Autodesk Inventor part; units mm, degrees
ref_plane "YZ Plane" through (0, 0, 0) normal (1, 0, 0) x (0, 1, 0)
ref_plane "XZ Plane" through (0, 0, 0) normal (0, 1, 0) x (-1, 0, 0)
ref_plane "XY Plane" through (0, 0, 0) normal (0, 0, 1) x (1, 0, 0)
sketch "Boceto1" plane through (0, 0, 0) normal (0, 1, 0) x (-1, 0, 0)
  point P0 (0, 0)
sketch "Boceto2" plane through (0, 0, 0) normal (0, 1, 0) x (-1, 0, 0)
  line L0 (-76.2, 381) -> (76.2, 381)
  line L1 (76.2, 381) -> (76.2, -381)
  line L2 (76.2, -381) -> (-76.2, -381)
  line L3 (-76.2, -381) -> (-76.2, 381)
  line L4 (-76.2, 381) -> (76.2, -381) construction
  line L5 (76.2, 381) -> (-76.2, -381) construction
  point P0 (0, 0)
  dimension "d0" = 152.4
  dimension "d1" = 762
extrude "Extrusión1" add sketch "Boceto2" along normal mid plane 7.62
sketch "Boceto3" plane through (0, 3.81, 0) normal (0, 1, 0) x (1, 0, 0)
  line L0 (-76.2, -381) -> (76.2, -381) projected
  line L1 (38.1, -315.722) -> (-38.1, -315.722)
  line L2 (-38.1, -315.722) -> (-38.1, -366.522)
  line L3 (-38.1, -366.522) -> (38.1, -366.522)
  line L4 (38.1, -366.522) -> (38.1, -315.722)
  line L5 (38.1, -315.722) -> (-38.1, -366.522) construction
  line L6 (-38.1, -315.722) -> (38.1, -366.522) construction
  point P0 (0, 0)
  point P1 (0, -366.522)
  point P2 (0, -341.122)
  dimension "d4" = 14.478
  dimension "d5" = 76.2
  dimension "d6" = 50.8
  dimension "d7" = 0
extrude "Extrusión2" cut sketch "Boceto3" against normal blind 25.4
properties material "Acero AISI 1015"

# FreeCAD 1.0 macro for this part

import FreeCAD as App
import Part
import Sketcher
from FreeCAD import Vector
Q = App.Units.Quantity

doc = App.newDocument("Part")
body = doc.addObject("PartDesign::Body", "Body")

# Sketch on XZ plane
sketch1 = doc.addObject("Sketcher::SketchObject", "Sketch")
body.addObject(sketch1)
sketch1.AttachmentSupport = (doc.XZ_Plane, [""])
sketch1.MapMode = "FlatFace"
sketch1.addGeometry([
    Part.LineSegment(Vector(-76.2, 381, 0), Vector(76.2, 381, 0)),
    Part.LineSegment(Vector(76.2, 381, 0), Vector(76.2, -381, 0)),
    Part.LineSegment(Vector(76.2, -381, 0), Vector(-76.2, -381, 0)),
    Part.LineSegment(Vector(-76.2, -381, 0), Vector(-76.2, 381, 0)),
], False)
sketch1.addConstraint([
    Sketcher.Constraint("Coincident", 0, 2, 1, 1),
    Sketcher.Constraint("Coincident", 1, 2, 2, 1),
    Sketcher.Constraint("Coincident", 2, 2, 3, 1),
    Sketcher.Constraint("Coincident", 3, 2, 0, 1),
    Sketcher.Constraint("Horizontal", 0),
    Sketcher.Constraint("Vertical", 1),
    Sketcher.Constraint("Horizontal", 2),
    Sketcher.Constraint("Vertical", 3),
    Sketcher.Constraint("Symmetric", 0, 2, 2, 2, -1, 1),
    Sketcher.Constraint("DistanceX", 0, 1, 0, 2, Q("6 in")),
    Sketcher.Constraint("DistanceY", 1, 2, 1, 1, Q("30 in")),
])
pad1 = doc.addObject("PartDesign::Pad", "Pad")
body.addObject(pad1)
pad1.Profile = sketch1
pad1.Length = Q("0.3 in")
pad1.Midplane = True

# Sketch on XZ plane
sketch2 = doc.addObject("Sketcher::SketchObject", "Sketch001")
body.addObject(sketch2)
sketch2.AttachmentSupport = (doc.XZ_Plane, [""])
sketch2.MapMode = "FlatFace"
sketch2.AttachmentOffset = App.Placement(Vector(0, 0, -0.15 * 25.4), App.Rotation())
sketch2.addGeometry([
    Part.LineSegment(Vector(38.1, 366.522, 0), Vector(38.1, 315.722, 0)),
    Part.LineSegment(Vector(38.1, 315.722, 0), Vector(-38.1, 315.722, 0)),
    Part.LineSegment(Vector(-38.1, 315.722, 0), Vector(-38.1, 366.522, 0)),
    Part.LineSegment(Vector(-38.1, 366.522, 0), Vector(38.1, 366.522, 0)),
], False)
sketch2.addConstraint([
    Sketcher.Constraint("Coincident", 0, 2, 1, 1),
    Sketcher.Constraint("Coincident", 1, 2, 2, 1),
    Sketcher.Constraint("Coincident", 2, 2, 3, 1),
    Sketcher.Constraint("Coincident", 3, 2, 0, 1),
    Sketcher.Constraint("Vertical", 0),
    Sketcher.Constraint("Horizontal", 1),
    Sketcher.Constraint("Vertical", 2),
    Sketcher.Constraint("Horizontal", 3),
    Sketcher.Constraint("DistanceX", 1, 2, 1, 1, Q("3 in")),
    Sketcher.Constraint("DistanceY", 0, 2, 0, 1, Q("2 in")),
    Sketcher.Constraint("DistanceX", -1, 1, 0, 2, Q("1.5 in")),
    Sketcher.Constraint("DistanceY", -1, 1, 0, 2, Q("12.43 in")),
])
pocket1 = doc.addObject("PartDesign::Pocket", "Pocket")
body.addObject(pocket1)
pocket1.Profile = sketch2
pocket1.Length = Q("1 in")
pocket1.Reversed = True

doc.recompute()
